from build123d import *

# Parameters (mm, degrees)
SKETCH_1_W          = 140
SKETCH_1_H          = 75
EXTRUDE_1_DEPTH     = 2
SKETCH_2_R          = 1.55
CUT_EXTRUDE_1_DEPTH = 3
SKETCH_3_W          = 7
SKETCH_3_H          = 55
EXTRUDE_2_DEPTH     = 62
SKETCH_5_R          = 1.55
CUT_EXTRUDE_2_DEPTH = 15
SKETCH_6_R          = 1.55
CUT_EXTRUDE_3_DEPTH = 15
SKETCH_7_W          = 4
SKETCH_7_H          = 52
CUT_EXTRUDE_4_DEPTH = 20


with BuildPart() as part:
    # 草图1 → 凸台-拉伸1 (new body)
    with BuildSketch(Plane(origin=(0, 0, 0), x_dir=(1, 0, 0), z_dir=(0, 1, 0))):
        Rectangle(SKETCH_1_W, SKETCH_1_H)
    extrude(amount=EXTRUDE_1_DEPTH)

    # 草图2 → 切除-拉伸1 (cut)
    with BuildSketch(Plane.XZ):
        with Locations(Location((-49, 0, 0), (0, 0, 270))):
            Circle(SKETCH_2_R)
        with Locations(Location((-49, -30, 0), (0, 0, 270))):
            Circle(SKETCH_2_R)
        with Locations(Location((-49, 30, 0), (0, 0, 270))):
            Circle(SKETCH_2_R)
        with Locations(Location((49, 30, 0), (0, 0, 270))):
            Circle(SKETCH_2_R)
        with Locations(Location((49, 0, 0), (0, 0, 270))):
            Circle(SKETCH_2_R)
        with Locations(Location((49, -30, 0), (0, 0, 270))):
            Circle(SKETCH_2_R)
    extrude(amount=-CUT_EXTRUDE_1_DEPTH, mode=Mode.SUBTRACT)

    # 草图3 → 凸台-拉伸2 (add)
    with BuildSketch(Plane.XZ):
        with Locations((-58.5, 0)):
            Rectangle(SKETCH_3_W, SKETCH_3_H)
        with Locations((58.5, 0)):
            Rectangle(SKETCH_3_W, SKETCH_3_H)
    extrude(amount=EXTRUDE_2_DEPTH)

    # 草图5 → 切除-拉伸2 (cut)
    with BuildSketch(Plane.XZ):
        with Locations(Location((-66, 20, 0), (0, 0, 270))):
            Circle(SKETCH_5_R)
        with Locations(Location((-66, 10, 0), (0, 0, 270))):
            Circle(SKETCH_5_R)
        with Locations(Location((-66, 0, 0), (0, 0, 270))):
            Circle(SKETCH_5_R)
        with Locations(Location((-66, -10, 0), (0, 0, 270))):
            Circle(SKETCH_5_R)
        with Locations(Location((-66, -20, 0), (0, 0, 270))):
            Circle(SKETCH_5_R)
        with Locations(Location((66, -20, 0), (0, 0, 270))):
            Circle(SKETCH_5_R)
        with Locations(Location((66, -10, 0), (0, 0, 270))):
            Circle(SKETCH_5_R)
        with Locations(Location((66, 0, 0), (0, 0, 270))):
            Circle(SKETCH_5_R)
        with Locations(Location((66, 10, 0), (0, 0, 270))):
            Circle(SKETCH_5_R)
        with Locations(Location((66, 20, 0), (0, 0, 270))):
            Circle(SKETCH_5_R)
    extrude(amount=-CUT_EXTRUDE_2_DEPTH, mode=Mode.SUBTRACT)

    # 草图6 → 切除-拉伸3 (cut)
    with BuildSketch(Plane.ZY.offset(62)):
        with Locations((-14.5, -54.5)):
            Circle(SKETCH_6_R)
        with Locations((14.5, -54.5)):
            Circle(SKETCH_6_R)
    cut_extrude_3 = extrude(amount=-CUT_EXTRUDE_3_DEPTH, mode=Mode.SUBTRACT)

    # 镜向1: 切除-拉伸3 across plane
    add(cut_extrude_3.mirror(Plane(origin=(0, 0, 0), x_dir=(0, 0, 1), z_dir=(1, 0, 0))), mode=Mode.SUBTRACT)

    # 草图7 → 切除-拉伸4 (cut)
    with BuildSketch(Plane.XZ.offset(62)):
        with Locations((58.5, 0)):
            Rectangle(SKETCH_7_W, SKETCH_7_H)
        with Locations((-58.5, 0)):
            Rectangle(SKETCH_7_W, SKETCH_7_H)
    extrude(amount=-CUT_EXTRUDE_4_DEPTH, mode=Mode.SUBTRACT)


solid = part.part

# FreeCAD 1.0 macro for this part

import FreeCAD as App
import Part
import Sketcher
from FreeCAD import Vector

doc = App.newDocument("Part")
body = doc.addObject("PartDesign::Body", "Body")

# Sketch on XZ plane
sketch1 = body.newObject("Sketcher::SketchObject", "Sketch")
sketch1.AttachmentSupport = (doc.getObject("XZ_Plane"), [""])
sketch1.MapMode = "FlatFace"
sketch1.addGeometry(Part.LineSegment(Vector(-70, -38, 0), Vector(-70, 38, 0)), False)
sketch1.addGeometry(Part.LineSegment(Vector(-70, 38, 0), Vector(70, 38, 0)), False)
sketch1.addGeometry(Part.LineSegment(Vector(70, 38, 0), Vector(70, -38, 0)), False)
sketch1.addGeometry(Part.LineSegment(Vector(70, -38, 0), Vector(-70, -38, 0)), False)
sketch1.addConstraint(Sketcher.Constraint("Coincident", 0, 2, 1, 1))
sketch1.addConstraint(Sketcher.Constraint("Coincident", 1, 2, 2, 1))
sketch1.addConstraint(Sketcher.Constraint("Coincident", 2, 2, 3, 1))
sketch1.addConstraint(Sketcher.Constraint("Coincident", 3, 2, 0, 1))
sketch1.addConstraint(Sketcher.Constraint("Vertical", 0))
sketch1.addConstraint(Sketcher.Constraint("Horizontal", 1))
sketch1.addConstraint(Sketcher.Constraint("Vertical", 2))
sketch1.addConstraint(Sketcher.Constraint("Horizontal", 3))
sketch1.addConstraint(Sketcher.Constraint("Symmetric", 0, 2, 2, 2, -1, 1))
sketch1.addConstraint(Sketcher.Constraint("DistanceX", 1, 1, 1, 2, 140.0))
sketch1.addConstraint(Sketcher.Constraint("DistanceY", 0, 1, 0, 2, 75.0))
pad1 = body.newObject("PartDesign::Pad", "Pad")
pad1.Profile = sketch1
pad1.Length = 2
pad1.Reversed = True

# Sketch on XZ plane
sketch2 = body.newObject("Sketcher::SketchObject", "Sketch001")
sketch2.AttachmentSupport = (doc.getObject("XZ_Plane"), [""])
sketch2.MapMode = "FlatFace"
sketch2.addGeometry(Part.Circle(Vector(-49, 0, 0), Vector(0, 0, 1), 1.6), False)
sketch2.addGeometry(Part.Circle(Vector(-49, -30, 0), Vector(0, 0, 1), 1.6), False)
sketch2.addGeometry(Part.Circle(Vector(-49, 30, 0), Vector(0, 0, 1), 1.6), False)
sketch2.addGeometry(Part.Circle(Vector(49, 30, 0), Vector(0, 0, 1), 1.6), False)
sketch2.addGeometry(Part.Circle(Vector(49, 0, 0), Vector(0, 0, 1), 1.6), False)
sketch2.addGeometry(Part.Circle(Vector(49, -30, 0), Vector(0, 0, 1), 1.6), False)
sketch2.addConstraint(Sketcher.Constraint("Equal", 0, 1))
sketch2.addConstraint(Sketcher.Constraint("Equal", 1, 2))
sketch2.addConstraint(Sketcher.Constraint("Equal", 2, 3))
sketch2.addConstraint(Sketcher.Constraint("Equal", 3, 4))
sketch2.addConstraint(Sketcher.Constraint("Equal", 4, 5))
sketch2.addConstraint(Sketcher.Constraint("Symmetric", 1, 3, 3, 3, -1, 1))
sketch2.addConstraint(Sketcher.Constraint("Symmetric", 0, 3, 4, 3, -1, 1))
sketch2.addConstraint(Sketcher.Constraint("Symmetric", 2, 3, 5, 3, -1, 1))
sketch2.addConstraint(Sketcher.Constraint("Symmetric", 2, 3, 3, 3, -2))
sketch2.addConstraint(Sketcher.Constraint("PointOnObject", 0, 3, -1))
sketch2.addConstraint(Sketcher.Constraint("Vertical", 0, 3, 1, 3))
sketch2.addConstraint(Sketcher.Constraint("Diameter", 0, 3.1))
sketch2.addConstraint(Sketcher.Constraint("DistanceX", 0, 3, -1, 1, 49.0))
sketch2.addConstraint(Sketcher.Constraint("DistanceY", 1, 3, -1, 1, 30.0))
pocket1 = body.newObject("PartDesign::Pocket", "Pocket")
pocket1.Profile = sketch2
pocket1.Length = 3

# Sketch on XZ plane
sketch3 = body.newObject("Sketcher::SketchObject", "Sketch002")
sketch3.AttachmentSupport = (doc.getObject("XZ_Plane"), [""])
sketch3.MapMode = "FlatFace"
sketch3.addGeometry(Part.LineSegment(Vector(-62, 28, 0), Vector(-62, -28, 0)), False)
sketch3.addGeometry(Part.LineSegment(Vector(-62, -28, 0), Vector(-55, -28, 0)), False)
sketch3.addGeometry(Part.LineSegment(Vector(-55, -28, 0), Vector(-55, 28, 0)), False)
sketch3.addGeometry(Part.LineSegment(Vector(-55, 28, 0), Vector(-62, 28, 0)), False)
sketch3.addGeometry(Part.LineSegment(Vector(55, 28, 0), Vector(55, -28, 0)), False)
sketch3.addGeometry(Part.LineSegment(Vector(55, -28, 0), Vector(62, -28, 0)), False)
sketch3.addGeometry(Part.LineSegment(Vector(62, -28, 0), Vector(62, 28, 0)), False)
sketch3.addGeometry(Part.LineSegment(Vector(62, 28, 0), Vector(55, 28, 0)), False)
sketch3.addConstraint(Sketcher.Constraint("Coincident", 0, 2, 1, 1))
sketch3.addConstraint(Sketcher.Constraint("Coincident", 1, 2, 2, 1))
sketch3.addConstraint(Sketcher.Constraint("Coincident", 2, 2, 3, 1))
sketch3.addConstraint(Sketcher.Constraint("Coincident", 3, 2, 0, 1))
sketch3.addConstraint(Sketcher.Constraint("Coincident", 4, 2, 5, 1))
sketch3.addConstraint(Sketcher.Constraint("Coincident", 5, 2, 6, 1))
sketch3.addConstraint(Sketcher.Constraint("Coincident", 6, 2, 7, 1))
sketch3.addConstraint(Sketcher.Constraint("Coincident", 7, 2, 4, 1))
sketch3.addConstraint(Sketcher.Constraint("Vertical", 0))
sketch3.addConstraint(Sketcher.Constraint("Horizontal", 1))
sketch3.addConstraint(Sketcher.Constraint("Vertical", 2))
sketch3.addConstraint(Sketcher.Constraint("Horizontal", 3))
sketch3.addConstraint(Sketcher.Constraint("Vertical", 4))
sketch3.addConstraint(Sketcher.Constraint("Horizontal", 5))
sketch3.addConstraint(Sketcher.Constraint("Vertical", 6))
sketch3.addConstraint(Sketcher.Constraint("Horizontal", 7))
sketch3.addConstraint(Sketcher.Constraint("Symmetric", 2, 2, 4, 2, -1, 1))
sketch3.addConstraint(Sketcher.Constraint("Symmetric", 0, 2, 6, 2, -1, 1))
sketch3.addConstraint(Sketcher.Constraint("Horizontal", 1, 2, 4, 2))
sketch3.addConstraint(Sketcher.Constraint("DistanceX", 1, 1, 1, 2, 7.0))
sketch3.addConstraint(Sketcher.Constraint("DistanceY", 0, 2, 0, 1, 55.0))
sketch3.addConstraint(Sketcher.Constraint("DistanceX", 0, 2, -1, 1, 62.0))
pad2 = body.newObject("PartDesign::Pad", "Pad001")
pad2.Profile = sketch3
pad2.Length = 62

# Sketch on XZ plane
sketch4 = body.newObject("Sketcher::SketchObject", "Sketch003")
sketch4.AttachmentSupport = (doc.getObject("XZ_Plane"), [""])
sketch4.MapMode = "FlatFace"
sketch4.addGeometry(Part.Circle(Vector(-66, 20, 0), Vector(0, 0, 1), 1.6), False)
sketch4.addGeometry(Part.Circle(Vector(-66, 10, 0), Vector(0, 0, 1), 1.6), False)
sketch4.addGeometry(Part.Circle(Vector(-66, 0, 0), Vector(0, 0, 1), 1.6), False)
sketch4.addGeometry(Part.Circle(Vector(-66, -10, 0), Vector(0, 0, 1), 1.6), False)
sketch4.addGeometry(Part.Circle(Vector(-66, -20, 0), Vector(0, 0, 1), 1.6), False)
sketch4.addGeometry(Part.Circle(Vector(66, -20, 0), Vector(0, 0, 1), 1.6), False)
sketch4.addGeometry(Part.Circle(Vector(66, -10, 0), Vector(0, 0, 1), 1.6), False)
sketch4.addGeometry(Part.Circle(Vector(66, 0, 0), Vector(0, 0, 1), 1.6), False)
sketch4.addGeometry(Part.Circle(Vector(66, 10, 0), Vector(0, 0, 1), 1.6), False)
sketch4.addGeometry(Part.Circle(Vector(66, 20, 0), Vector(0, 0, 1), 1.6), False)
sketch4.addConstraint(Sketcher.Constraint("Equal", 0, 1))
sketch4.addConstraint(Sketcher.Constraint("Equal", 1, 2))
sketch4.addConstraint(Sketcher.Constraint("Equal", 2, 3))
sketch4.addConstraint(Sketcher.Constraint("Equal", 3, 4))
sketch4.addConstraint(Sketcher.Constraint("Equal", 4, 5))
sketch4.addConstraint(Sketcher.Constraint("Equal", 5, 6))
sketch4.addConstraint(Sketcher.Constraint("Equal", 6, 7))
sketch4.addConstraint(Sketcher.Constraint("Equal", 7, 8))
sketch4.addConstraint(Sketcher.Constraint("Equal", 8, 9))
sketch4.addConstraint(Sketcher.Constraint("Symmetric", 0, 3, 5, 3, -1, 1))
sketch4.addConstraint(Sketcher.Constraint("Symmetric", 1, 3, 6, 3, -1, 1))
sketch4.addConstraint(Sketcher.Constraint("Symmetric", 2, 3, 7, 3, -1, 1))
sketch4.addConstraint(Sketcher.Constraint("Symmetric", 3, 3, 8, 3, -1, 1))
sketch4.addConstraint(Sketcher.Constraint("Symmetric", 4, 3, 9, 3, -1, 1))
sketch4.addConstraint(Sketcher.Constraint("Symmetric", 4, 3, 5, 3, -2))
sketch4.addConstraint(Sketcher.Constraint("Symmetric", 3, 3, 6, 3, -2))
sketch4.addConstraint(Sketcher.Constraint("PointOnObject", 2, 3, -1))
sketch4.addConstraint(Sketcher.Constraint("Vertical", 0, 3, 1, 3))
sketch4.addConstraint(Sketcher.Constraint("Vertical", 1, 3, 2, 3))
sketch4.addConstraint(Sketcher.Constraint("Diameter", 0, 3.1))
sketch4.addConstraint(Sketcher.Constraint("DistanceX", 0, 3, -1, 1, 66.0))
sketch4.addConstraint(Sketcher.Constraint("DistanceY", -1, 1, 0, 3, 20.0))
sketch4.addConstraint(Sketcher.Constraint("DistanceY", -1, 1, 1, 3, 10.0))
pocket2 = body.newObject("PartDesign::Pocket", "Pocket001")
pocket2.Profile = sketch4
pocket2.Length = 15

# Sketch on YZ plane
sketch5 = body.newObject("Sketcher::SketchObject", "Sketch004")
sketch5.AttachmentSupport = (doc.getObject("YZ_Plane"), [""])
sketch5.MapMode = "FlatFace"
sketch5.AttachmentOffset = App.Placement(Vector(0, 0, -62), App.Rotation())
sketch5.addGeometry(Part.Circle(Vector(-54.5, -14.5, 0), Vector(0, 0, 1), 1.6), False)
sketch5.addGeometry(Part.Circle(Vector(-54.5, 14.5, 0), Vector(0, 0, 1), 1.6), False)
sketch5.addConstraint(Sketcher.Constraint("Equal", 0, 1))
sketch5.addConstraint(Sketcher.Constraint("Symmetric", 0, 3, 1, 3, -1))
sketch5.addConstraint(Sketcher.Constraint("Diameter", 0, 3.1))
sketch5.addConstraint(Sketcher.Constraint("DistanceY", 0, 3, 1, 3, 29.0))
sketch5.addConstraint(Sketcher.Constraint("DistanceX", 0, 3, -1, 1, 54.5))
pocket3 = body.newObject("PartDesign::Pocket", "Pocket002")
pocket3.Profile = sketch5
pocket3.Length = 15
pocket3.Reversed = True
doc.recompute()

mirrored = body.newObject("PartDesign::Mirrored", "Mirrored")
mirrored.Originals = [pocket3]
mirrored.MirrorPlane = (doc.getObject("YZ_Plane"), [""])
body.Tip = mirrored

# Sketch on XZ plane
sketch6 = body.newObject("Sketcher::SketchObject", "Sketch005")
sketch6.AttachmentSupport = (doc.getObject("XZ_Plane"), [""])
sketch6.MapMode = "FlatFace"
sketch6.AttachmentOffset = App.Placement(Vector(0, 0, 62), App.Rotation())
sketch6.addGeometry(Part.LineSegment(Vector(56.5, 26, 0), Vector(56.5, -26, 0)), False)
sketch6.addGeometry(Part.LineSegment(Vector(56.5, -26, 0), Vector(60.5, -26, 0)), False)
sketch6.addGeometry(Part.LineSegment(Vector(60.5, -26, 0), Vector(60.5, 26, 0)), False)
sketch6.addGeometry(Part.LineSegment(Vector(60.5, 26, 0), Vector(56.5, 26, 0)), False)
sketch6.addGeometry(Part.LineSegment(Vector(-60.5, 26, 0), Vector(-60.5, -26, 0)), False)
sketch6.addGeometry(Part.LineSegment(Vector(-60.5, -26, 0), Vector(-56.5, -26, 0)), False)
sketch6.addGeometry(Part.LineSegment(Vector(-56.5, -26, 0), Vector(-56.5, 26, 0)), False)
sketch6.addGeometry(Part.LineSegment(Vector(-56.5, 26, 0), Vector(-60.5, 26, 0)), False)
sketch6.addConstraint(Sketcher.Constraint("Coincident", 0, 2, 1, 1))
sketch6.addConstraint(Sketcher.Constraint("Coincident", 1, 2, 2, 1))
sketch6.addConstraint(Sketcher.Constraint("Coincident", 2, 2, 3, 1))
sketch6.addConstraint(Sketcher.Constraint("Coincident", 3, 2, 0, 1))
sketch6.addConstraint(Sketcher.Constraint("Coincident", 4, 2, 5, 1))
sketch6.addConstraint(Sketcher.Constraint("Coincident", 5, 2, 6, 1))
sketch6.addConstraint(Sketcher.Constraint("Coincident", 6, 2, 7, 1))
sketch6.addConstraint(Sketcher.Constraint("Coincident", 7, 2, 4, 1))
sketch6.addConstraint(Sketcher.Constraint("Vertical", 0))
sketch6.addConstraint(Sketcher.Constraint("Horizontal", 1))
sketch6.addConstraint(Sketcher.Constraint("Vertical", 2))
sketch6.addConstraint(Sketcher.Constraint("Horizontal", 3))
sketch6.addConstraint(Sketcher.Constraint("Vertical", 4))
sketch6.addConstraint(Sketcher.Constraint("Horizontal", 5))
sketch6.addConstraint(Sketcher.Constraint("Vertical", 6))
sketch6.addConstraint(Sketcher.Constraint("Horizontal", 7))
sketch6.addConstraint(Sketcher.Constraint("Symmetric", 2, 2, 4, 2, -1, 1))
sketch6.addConstraint(Sketcher.Constraint("Symmetric", 0, 2, 6, 2, -1, 1))
sketch6.addConstraint(Sketcher.Constraint("Horizontal", 1, 2, 4, 2))
sketch6.addConstraint(Sketcher.Constraint("DistanceX", 1, 1, 1, 2, 4.0))
sketch6.addConstraint(Sketcher.Constraint("DistanceY", 0, 2, 0, 1, 52.0))
sketch6.addConstraint(Sketcher.Constraint("DistanceX", 4, 2, 0, 2, 117.0))
pocket4 = body.newObject("PartDesign::Pocket", "Pocket003")
pocket4.Profile = sketch6
pocket4.Length = 20

doc.recompute()
